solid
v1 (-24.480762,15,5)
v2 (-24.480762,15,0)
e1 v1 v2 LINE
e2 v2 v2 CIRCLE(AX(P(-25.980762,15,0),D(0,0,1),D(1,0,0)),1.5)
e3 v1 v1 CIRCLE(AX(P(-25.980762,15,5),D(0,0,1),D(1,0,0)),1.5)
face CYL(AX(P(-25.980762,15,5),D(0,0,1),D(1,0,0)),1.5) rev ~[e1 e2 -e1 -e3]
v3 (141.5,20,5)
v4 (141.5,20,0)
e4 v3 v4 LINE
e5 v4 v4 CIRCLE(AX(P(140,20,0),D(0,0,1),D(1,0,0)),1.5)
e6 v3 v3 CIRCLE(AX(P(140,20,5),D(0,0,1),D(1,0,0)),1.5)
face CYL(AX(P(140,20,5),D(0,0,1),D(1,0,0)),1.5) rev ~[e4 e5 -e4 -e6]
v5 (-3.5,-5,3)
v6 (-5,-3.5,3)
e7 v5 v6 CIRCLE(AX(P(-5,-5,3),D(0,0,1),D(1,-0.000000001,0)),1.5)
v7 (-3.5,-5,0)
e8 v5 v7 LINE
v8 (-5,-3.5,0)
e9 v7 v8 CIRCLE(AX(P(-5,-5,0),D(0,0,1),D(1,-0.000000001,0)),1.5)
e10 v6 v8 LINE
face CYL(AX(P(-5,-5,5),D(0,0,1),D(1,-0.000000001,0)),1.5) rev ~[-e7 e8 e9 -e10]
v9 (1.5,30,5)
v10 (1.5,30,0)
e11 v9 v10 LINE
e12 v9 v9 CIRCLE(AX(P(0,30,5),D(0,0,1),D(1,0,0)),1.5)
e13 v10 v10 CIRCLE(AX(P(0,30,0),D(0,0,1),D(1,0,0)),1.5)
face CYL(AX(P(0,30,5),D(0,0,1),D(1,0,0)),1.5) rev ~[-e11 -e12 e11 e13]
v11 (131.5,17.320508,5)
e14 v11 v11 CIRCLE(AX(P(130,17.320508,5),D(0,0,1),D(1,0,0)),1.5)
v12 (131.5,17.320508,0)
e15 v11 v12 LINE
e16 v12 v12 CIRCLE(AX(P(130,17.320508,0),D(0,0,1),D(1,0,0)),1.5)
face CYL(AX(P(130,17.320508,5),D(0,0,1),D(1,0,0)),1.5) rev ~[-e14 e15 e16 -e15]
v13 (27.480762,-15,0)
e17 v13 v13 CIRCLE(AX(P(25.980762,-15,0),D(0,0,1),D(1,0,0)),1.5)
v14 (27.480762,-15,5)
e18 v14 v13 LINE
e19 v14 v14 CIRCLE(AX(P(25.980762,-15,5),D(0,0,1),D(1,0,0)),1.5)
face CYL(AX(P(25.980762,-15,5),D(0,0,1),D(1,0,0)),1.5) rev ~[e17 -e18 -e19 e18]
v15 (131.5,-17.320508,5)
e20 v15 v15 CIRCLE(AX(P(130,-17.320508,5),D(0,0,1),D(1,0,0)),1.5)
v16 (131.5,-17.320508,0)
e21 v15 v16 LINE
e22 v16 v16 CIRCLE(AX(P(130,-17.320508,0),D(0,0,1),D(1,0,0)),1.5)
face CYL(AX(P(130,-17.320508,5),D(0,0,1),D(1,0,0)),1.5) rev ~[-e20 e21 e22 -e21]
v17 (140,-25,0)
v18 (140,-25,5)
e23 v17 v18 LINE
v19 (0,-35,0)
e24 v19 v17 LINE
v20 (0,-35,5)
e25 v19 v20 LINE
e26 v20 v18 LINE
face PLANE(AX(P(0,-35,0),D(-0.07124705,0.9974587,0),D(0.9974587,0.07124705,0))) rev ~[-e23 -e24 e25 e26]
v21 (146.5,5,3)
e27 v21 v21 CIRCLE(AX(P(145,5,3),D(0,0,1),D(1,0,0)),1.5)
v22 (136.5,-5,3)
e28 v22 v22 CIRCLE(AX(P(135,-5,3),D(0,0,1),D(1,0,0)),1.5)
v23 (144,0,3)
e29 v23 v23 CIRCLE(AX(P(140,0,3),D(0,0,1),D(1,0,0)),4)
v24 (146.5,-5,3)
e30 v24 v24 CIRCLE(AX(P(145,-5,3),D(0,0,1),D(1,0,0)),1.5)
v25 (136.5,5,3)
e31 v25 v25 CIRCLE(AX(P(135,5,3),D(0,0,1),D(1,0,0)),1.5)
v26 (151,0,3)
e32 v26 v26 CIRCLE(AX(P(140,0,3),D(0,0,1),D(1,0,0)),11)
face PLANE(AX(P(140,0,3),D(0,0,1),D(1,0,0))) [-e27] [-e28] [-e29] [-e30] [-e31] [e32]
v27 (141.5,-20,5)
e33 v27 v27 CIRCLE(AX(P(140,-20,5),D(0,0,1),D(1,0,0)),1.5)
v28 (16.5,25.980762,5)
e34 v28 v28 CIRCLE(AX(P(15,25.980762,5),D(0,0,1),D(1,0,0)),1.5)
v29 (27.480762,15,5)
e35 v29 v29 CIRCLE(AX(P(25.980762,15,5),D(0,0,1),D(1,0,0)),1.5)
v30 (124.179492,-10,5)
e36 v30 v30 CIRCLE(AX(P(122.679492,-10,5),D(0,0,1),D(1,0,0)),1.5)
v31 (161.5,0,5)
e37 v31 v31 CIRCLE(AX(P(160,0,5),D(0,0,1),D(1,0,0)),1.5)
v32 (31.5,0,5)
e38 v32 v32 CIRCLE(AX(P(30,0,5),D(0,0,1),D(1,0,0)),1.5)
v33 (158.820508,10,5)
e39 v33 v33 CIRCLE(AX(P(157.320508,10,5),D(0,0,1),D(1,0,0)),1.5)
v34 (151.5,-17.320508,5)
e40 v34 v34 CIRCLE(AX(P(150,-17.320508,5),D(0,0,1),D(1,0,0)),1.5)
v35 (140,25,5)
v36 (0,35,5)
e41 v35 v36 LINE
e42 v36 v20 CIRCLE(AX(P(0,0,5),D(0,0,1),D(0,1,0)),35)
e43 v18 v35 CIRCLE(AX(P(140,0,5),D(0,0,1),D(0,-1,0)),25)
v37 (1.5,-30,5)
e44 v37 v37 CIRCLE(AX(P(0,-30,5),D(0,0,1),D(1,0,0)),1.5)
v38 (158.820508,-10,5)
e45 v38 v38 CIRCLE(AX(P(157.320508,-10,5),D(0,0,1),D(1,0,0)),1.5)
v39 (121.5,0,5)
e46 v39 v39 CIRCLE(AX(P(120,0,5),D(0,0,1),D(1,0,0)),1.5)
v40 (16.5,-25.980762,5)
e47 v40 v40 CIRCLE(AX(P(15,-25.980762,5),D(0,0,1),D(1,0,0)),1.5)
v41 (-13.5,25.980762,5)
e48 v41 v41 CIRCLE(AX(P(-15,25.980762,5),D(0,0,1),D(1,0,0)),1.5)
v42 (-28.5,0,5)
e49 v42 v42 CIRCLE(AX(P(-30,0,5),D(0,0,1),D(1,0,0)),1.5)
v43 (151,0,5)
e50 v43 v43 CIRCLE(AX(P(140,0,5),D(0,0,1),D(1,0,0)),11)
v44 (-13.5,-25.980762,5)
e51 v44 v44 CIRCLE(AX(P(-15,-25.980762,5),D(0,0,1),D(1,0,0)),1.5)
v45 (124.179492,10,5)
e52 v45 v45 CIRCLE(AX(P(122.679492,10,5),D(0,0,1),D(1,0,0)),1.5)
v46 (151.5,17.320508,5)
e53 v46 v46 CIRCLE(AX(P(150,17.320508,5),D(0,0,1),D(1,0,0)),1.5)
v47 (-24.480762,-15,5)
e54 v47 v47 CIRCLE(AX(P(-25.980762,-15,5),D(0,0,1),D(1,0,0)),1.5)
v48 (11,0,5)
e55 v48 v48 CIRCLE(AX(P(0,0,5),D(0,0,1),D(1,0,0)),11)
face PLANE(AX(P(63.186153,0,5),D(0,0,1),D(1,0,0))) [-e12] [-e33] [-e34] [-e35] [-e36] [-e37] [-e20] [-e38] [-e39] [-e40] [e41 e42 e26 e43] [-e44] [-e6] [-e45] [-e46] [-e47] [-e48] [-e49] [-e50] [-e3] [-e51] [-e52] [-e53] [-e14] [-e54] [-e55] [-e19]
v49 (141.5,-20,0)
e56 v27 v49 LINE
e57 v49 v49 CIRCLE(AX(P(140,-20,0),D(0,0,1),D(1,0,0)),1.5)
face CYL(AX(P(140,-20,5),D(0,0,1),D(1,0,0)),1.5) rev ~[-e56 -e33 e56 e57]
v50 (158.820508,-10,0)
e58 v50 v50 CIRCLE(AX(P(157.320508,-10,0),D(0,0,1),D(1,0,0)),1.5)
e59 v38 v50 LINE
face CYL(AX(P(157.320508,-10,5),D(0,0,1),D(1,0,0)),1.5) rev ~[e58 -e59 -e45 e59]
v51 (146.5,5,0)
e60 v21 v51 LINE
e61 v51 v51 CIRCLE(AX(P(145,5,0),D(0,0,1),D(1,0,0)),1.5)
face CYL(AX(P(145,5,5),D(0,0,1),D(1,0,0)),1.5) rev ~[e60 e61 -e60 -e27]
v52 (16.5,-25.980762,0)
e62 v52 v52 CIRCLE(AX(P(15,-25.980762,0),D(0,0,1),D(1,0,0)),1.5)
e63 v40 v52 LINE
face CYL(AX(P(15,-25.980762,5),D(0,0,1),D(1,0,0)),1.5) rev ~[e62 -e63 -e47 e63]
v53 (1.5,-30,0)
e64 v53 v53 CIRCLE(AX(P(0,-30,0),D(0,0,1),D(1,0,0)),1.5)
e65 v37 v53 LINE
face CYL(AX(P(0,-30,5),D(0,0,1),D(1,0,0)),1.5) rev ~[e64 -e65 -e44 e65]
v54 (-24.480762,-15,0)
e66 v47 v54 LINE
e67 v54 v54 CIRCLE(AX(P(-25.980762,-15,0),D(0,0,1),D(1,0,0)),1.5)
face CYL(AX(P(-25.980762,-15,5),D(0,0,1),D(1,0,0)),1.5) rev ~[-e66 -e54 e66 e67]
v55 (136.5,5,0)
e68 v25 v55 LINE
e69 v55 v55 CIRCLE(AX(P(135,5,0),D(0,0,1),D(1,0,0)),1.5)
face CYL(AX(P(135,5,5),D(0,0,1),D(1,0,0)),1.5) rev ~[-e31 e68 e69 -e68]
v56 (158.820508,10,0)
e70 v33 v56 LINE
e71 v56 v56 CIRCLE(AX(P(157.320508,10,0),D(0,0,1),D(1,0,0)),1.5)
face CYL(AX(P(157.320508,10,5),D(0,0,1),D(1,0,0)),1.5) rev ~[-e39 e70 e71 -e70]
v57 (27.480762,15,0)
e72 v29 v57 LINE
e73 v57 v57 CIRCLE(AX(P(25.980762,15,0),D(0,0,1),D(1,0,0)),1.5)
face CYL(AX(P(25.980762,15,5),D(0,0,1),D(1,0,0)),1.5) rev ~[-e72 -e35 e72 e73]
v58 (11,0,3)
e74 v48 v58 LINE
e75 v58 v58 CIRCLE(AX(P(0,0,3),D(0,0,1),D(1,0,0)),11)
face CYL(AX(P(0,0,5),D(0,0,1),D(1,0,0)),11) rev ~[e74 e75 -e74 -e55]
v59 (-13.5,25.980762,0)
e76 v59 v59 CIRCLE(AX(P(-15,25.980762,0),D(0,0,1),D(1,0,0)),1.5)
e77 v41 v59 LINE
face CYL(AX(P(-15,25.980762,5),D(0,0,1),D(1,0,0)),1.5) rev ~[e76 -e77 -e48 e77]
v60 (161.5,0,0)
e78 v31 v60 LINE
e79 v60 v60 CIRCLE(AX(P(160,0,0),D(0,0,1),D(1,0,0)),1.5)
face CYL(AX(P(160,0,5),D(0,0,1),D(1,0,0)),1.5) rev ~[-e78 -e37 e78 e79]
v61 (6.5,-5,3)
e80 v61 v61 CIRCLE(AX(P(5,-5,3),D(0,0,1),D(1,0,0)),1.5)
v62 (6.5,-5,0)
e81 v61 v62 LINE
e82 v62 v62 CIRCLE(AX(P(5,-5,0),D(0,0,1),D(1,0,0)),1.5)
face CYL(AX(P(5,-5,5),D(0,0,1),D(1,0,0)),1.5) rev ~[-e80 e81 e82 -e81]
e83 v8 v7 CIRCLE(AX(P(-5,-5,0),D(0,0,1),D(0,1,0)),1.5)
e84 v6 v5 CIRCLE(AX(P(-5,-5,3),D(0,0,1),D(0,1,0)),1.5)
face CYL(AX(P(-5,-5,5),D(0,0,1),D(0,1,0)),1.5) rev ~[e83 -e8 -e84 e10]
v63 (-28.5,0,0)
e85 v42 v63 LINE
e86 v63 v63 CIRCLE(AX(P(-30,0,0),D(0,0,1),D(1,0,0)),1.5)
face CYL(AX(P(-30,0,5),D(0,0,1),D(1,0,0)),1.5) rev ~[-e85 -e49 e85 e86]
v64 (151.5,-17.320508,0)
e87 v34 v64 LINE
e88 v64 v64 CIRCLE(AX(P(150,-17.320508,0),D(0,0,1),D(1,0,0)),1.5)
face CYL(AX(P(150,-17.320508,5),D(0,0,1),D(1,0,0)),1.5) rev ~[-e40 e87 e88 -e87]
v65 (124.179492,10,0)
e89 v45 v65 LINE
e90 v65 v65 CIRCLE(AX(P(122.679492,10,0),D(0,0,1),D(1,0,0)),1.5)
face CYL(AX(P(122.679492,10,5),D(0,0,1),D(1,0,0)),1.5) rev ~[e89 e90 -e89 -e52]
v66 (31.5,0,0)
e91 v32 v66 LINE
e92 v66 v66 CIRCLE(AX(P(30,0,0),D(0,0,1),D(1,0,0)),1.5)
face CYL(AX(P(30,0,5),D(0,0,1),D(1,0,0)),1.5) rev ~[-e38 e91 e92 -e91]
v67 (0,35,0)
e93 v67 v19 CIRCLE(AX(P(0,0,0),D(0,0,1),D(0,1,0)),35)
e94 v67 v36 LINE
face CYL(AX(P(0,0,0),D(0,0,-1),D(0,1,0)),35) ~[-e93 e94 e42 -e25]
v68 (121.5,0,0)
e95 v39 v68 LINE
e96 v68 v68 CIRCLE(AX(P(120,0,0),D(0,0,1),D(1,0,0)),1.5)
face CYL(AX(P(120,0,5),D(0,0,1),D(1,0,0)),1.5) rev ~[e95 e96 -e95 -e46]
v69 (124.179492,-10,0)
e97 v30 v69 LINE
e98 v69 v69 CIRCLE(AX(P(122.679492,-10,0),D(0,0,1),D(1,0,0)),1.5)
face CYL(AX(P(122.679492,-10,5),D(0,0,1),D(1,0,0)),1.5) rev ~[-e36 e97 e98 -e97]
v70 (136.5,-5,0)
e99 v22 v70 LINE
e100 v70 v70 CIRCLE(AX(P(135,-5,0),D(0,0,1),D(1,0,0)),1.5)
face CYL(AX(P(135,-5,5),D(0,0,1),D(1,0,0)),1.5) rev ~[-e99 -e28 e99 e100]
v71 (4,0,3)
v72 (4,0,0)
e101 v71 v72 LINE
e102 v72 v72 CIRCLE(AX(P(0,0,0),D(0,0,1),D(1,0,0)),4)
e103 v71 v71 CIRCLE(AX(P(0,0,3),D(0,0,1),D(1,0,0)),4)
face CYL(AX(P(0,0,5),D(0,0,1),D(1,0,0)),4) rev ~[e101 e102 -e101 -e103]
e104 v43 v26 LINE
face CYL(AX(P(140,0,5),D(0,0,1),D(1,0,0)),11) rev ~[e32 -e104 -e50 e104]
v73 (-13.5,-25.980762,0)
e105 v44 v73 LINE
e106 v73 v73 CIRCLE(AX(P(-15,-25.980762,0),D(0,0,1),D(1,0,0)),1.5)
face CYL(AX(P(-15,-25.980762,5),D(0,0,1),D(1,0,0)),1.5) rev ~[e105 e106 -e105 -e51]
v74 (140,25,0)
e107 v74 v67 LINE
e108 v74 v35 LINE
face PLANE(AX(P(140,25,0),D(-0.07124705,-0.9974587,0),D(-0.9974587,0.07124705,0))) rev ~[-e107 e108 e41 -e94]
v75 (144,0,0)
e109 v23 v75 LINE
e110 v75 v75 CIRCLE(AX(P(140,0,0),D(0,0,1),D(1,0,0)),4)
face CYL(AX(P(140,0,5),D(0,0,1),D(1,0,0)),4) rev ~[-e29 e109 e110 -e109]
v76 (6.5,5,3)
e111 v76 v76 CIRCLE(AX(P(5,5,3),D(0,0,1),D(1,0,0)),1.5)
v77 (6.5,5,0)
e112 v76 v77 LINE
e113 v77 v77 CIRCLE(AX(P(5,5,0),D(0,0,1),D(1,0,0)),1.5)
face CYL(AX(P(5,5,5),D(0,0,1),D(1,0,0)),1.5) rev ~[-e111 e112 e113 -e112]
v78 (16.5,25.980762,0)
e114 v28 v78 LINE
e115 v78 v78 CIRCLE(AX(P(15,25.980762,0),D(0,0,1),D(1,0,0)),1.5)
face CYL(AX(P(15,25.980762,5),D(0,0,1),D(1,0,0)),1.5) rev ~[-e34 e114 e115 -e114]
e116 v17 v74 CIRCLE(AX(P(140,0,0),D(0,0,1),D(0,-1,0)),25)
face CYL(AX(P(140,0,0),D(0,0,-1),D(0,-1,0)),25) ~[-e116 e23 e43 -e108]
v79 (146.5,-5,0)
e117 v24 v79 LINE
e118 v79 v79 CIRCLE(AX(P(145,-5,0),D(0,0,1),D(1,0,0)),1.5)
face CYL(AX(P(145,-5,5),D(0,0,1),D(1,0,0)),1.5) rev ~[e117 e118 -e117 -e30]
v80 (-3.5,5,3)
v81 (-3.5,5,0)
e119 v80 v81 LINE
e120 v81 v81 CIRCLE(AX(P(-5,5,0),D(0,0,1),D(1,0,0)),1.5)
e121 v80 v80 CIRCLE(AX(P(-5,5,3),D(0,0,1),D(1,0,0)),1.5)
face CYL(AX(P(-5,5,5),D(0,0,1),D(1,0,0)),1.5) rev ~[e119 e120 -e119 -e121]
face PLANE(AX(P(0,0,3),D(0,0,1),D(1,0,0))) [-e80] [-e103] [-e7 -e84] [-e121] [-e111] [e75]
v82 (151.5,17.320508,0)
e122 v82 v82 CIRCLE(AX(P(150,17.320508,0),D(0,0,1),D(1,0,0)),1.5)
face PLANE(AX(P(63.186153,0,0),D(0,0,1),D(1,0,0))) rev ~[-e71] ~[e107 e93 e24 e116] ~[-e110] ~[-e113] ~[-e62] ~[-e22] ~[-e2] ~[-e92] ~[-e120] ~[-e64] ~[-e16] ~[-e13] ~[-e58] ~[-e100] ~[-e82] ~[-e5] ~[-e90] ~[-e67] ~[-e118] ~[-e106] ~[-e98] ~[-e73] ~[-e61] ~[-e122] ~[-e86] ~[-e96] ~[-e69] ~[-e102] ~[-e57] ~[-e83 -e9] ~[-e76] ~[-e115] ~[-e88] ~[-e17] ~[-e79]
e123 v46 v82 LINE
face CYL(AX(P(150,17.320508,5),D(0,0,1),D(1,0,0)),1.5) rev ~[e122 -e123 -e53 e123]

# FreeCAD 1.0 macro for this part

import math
import FreeCAD as App
import Part
import Sketcher

doc = App.newDocument("Part")
body = doc.addObject("PartDesign::Body", "Body")

sketch1 = body.newObject("Sketcher::SketchObject", "Sketch")
sketch1.AttachmentSupport = (doc.getObject("XY_Plane"), [""])
sketch1.MapMode = "FlatFace"
sketch1.addGeometry([
    Part.LineSegment(App.Vector(140, 25, 0), App.Vector(0, 35, 0)),
    Part.ArcOfCircle(Part.Circle(App.Vector(0, 0, 0), App.Vector(0, 0, 1), 35), math.radians(90), math.radians(270)),
    Part.LineSegment(App.Vector(0, -35, 0), App.Vector(140, -25, 0)),
    Part.ArcOfCircle(Part.Circle(App.Vector(140, 0, 0), App.Vector(0, 0, 1), 25), math.radians(-90), math.radians(90)),
], False)
sketch1.addConstraint([
    Sketcher.Constraint("Coincident", 0, 2, 1, 1),
    Sketcher.Constraint("Coincident", 1, 2, 2, 1),
    Sketcher.Constraint("Coincident", 2, 2, 3, 1),
    Sketcher.Constraint("Coincident", 3, 2, 0, 1),
    Sketcher.Constraint("Coincident", 1, 3, -1, 1),
    Sketcher.Constraint("Symmetric", 2, 2, 3, 2, -1),
    Sketcher.Constraint("PointOnObject", 0, 2, -2),
    Sketcher.Constraint("PointOnObject", 1, 2, -2),
    Sketcher.Constraint("Vertical", 3, 3, 2, 2),
    Sketcher.Constraint("Radius", 1, 35.0),
    Sketcher.Constraint("Radius", 3, 25.0),
    Sketcher.Constraint("DistanceX", -1, 1, 3, 3, 140.0),
])
pad1 = body.newObject("PartDesign::Pad", "Pad")
pad1.Profile = sketch1
pad1.Length = 5

sketch2 = body.newObject("Sketcher::SketchObject", "Sketch001")
sketch2.AttachmentSupport = (doc.getObject("XY_Plane"), [""])
sketch2.MapMode = "FlatFace"
sketch2.AttachmentOffset = App.Placement(App.Vector(0, 0, 5), App.Rotation())
sketch2.addGeometry([
    Part.Circle(App.Vector(140, 0, 0), App.Vector(0, 0, 1), 4),
    Part.Circle(App.Vector(0, 0, 0), App.Vector(0, 0, 1), 4),
    Part.ArcOfCircle(Part.Circle(App.Vector(-5, -5, 0), App.Vector(0, 0, 1), 1.5), math.radians(0), math.radians(90)),
    Part.ArcOfCircle(Part.Circle(App.Vector(-5, -5, 0), App.Vector(0, 0, 1), 1.5), math.radians(90), math.radians(360)),
    Part.Circle(App.Vector(135, 5, 0), App.Vector(0, 0, 1), 1.5),
    Part.Circle(App.Vector(135, -5, 0), App.Vector(0, 0, 1), 1.5),
    Part.Circle(App.Vector(145, -5, 0), App.Vector(0, 0, 1), 1.5),
    Part.Circle(App.Vector(145, 5, 0), App.Vector(0, 0, 1), 1.5),
    Part.Circle(App.Vector(-5, 5, 0), App.Vector(0, 0, 1), 1.5),
    Part.Circle(App.Vector(5, 5, 0), App.Vector(0, 0, 1), 1.5),
    Part.Circle(App.Vector(5, -5, 0), App.Vector(0, 0, 1), 1.5),
], False)
sketch2.addConstraint([
    Sketcher.Constraint("Tangent", 2, 1, 3, 2),
    Sketcher.Constraint("Coincident", 3, 1, 2, 2),
    Sketcher.Constraint("Coincident", 1, 3, -1, 1),
    Sketcher.Constraint("Equal", 0, 1),
    Sketcher.Constraint("Equal", 3, 4),
    Sketcher.Constraint("Equal", 4, 5),
    Sketcher.Constraint("Equal", 5, 6),
    Sketcher.Constraint("Equal", 6, 7),
    Sketcher.Constraint("Equal", 7, 8),
    Sketcher.Constraint("Equal", 8, 9),
    Sketcher.Constraint("Equal", 9, 10),
    Sketcher.Constraint("Symmetric", 2, 3, 9, 3, -1, 1),
    Sketcher.Constraint("Symmetric", 8, 3, 10, 3, -1, 1),
    Sketcher.Constraint("Symmetric", 8, 3, 9, 3, -2),
    Sketcher.Constraint("Symmetric", 4, 3, 5, 3, -1),
    Sketcher.Constraint("Symmetric", 6, 3, 7, 3, -1),
    Sketcher.Constraint("PointOnObject", 0, 3, -1),
    Sketcher.Constraint("Horizontal", 3, 3, 5, 3),
    Sketcher.Constraint("Horizontal", 5, 3, 6, 3),
    Sketcher.Constraint("Horizontal", 10, 3, 2, 1),
    Sketcher.Constraint("Vertical", 8, 3, 3, 1),
    Sketcher.Constraint("Diameter", 0, 8.0),
    Sketcher.Constraint("Diameter", 4, 3.0),
    Sketcher.Constraint("DistanceX", -1, 1, 0, 3, 140.0),
    Sketcher.Constraint("DistanceX", 2, 3, -1, 1, 5.0),
    Sketcher.Constraint("DistanceY", 2, 3, -1, 1, 5.0),
    Sketcher.Constraint("DistanceX", -1, 1, 4, 3, 135.0),
    Sketcher.Constraint("DistanceX", -1, 1, 6, 3, 145.0),
])
pocket1 = body.newObject("PartDesign::Pocket", "Pocket")
pocket1.Profile = sketch2
pocket1.Length = 5

sketch3 = body.newObject("Sketcher::SketchObject", "Sketch002")
sketch3.AttachmentSupport = (doc.getObject("XY_Plane"), [""])
sketch3.MapMode = "FlatFace"
sketch3.AttachmentOffset = App.Placement(App.Vector(0, 0, 5), App.Rotation())
sketch3.addGeometry([
    Part.Circle(App.Vector(0, 0, 0), App.Vector(0, 0, 1), 11),
    Part.Circle(App.Vector(140, 0, 0), App.Vector(0, 0, 1), 11),
], False)
sketch3.addConstraint([
    Sketcher.Constraint("Coincident", 0, 3, -1, 1),
    Sketcher.Constraint("Equal", 0, 1),
    Sketcher.Constraint("PointOnObject", 1, 3, -1),
    Sketcher.Constraint("Diameter", 0, 22.0),
    Sketcher.Constraint("DistanceX", -1, 1, 1, 3, 140.0),
])
pocket2 = body.newObject("PartDesign::Pocket", "Pocket001")
pocket2.Profile = sketch3
pocket2.Length = 2

sketch4 = body.newObject("Sketcher::SketchObject", "Sketch003")
sketch4.AttachmentSupport = (doc.getObject("XY_Plane"), [""])
sketch4.MapMode = "FlatFace"
sketch4.AttachmentOffset = App.Placement(App.Vector(0, 0, 5), App.Rotation())
sketch4.addGeometry([
    Part.Circle(App.Vector(0, 30, 0), App.Vector(0, 0, 1), 1.5),
    Part.Circle(App.Vector(15, 26, 0), App.Vector(0, 0, 1), 1.5),
    Part.Circle(App.Vector(26, 15, 0), App.Vector(0, 0, 1), 1.5),
    Part.Circle(App.Vector(30, 0, 0), App.Vector(0, 0, 1), 1.5),
    Part.Circle(App.Vector(26, -15, 0), App.Vector(0, 0, 1), 1.5),
    Part.Circle(App.Vector(15, -26, 0), App.Vector(0, 0, 1), 1.5),
    Part.Circle(App.Vector(0, -30, 0), App.Vector(0, 0, 1), 1.5),
    Part.Circle(App.Vector(-15, -26, 0), App.Vector(0, 0, 1), 1.5),
    Part.Circle(App.Vector(-26, -15, 0), App.Vector(0, 0, 1), 1.5),
    Part.Circle(App.Vector(-30, 0, 0), App.Vector(0, 0, 1), 1.5),
    Part.Circle(App.Vector(-26, 15, 0), App.Vector(0, 0, 1), 1.5),
    Part.Circle(App.Vector(-15, 26, 0), App.Vector(0, 0, 1), 1.5),
    Part.Circle(App.Vector(140, 20, 0), App.Vector(0, 0, 1), 1.5),
    Part.Circle(App.Vector(150, 17.3, 0), App.Vector(0, 0, 1), 1.5),
    Part.Circle(App.Vector(157.3, 10, 0), App.Vector(0, 0, 1), 1.5),
    Part.Circle(App.Vector(160, 0, 0), App.Vector(0, 0, 1), 1.5),
    Part.Circle(App.Vector(157.3, -10, 0), App.Vector(0, 0, 1), 1.5),
    Part.Circle(App.Vector(150, -17.3, 0), App.Vector(0, 0, 1), 1.5),
    Part.Circle(App.Vector(140, -20, 0), App.Vector(0, 0, 1), 1.5),
    Part.Circle(App.Vector(130, -17.3, 0), App.Vector(0, 0, 1), 1.5),
    Part.Circle(App.Vector(122.7, -10, 0), App.Vector(0, 0, 1), 1.5),
    Part.Circle(App.Vector(120, 0, 0), App.Vector(0, 0, 1), 1.5),
    Part.Circle(App.Vector(122.7, 10, 0), App.Vector(0, 0, 1), 1.5),
    Part.Circle(App.Vector(130, 17.3, 0), App.Vector(0, 0, 1), 1.5),
], False)
sketch4.addConstraint([
    Sketcher.Constraint("Equal", 0, 1),
    Sketcher.Constraint("Equal", 1, 2),
    Sketcher.Constraint("Equal", 2, 3),
    Sketcher.Constraint("Equal", 3, 4),
    Sketcher.Constraint("Equal", 4, 5),
    Sketcher.Constraint("Equal", 5, 6),
    Sketcher.Constraint("Equal", 6, 7),
    Sketcher.Constraint("Equal", 7, 8),
    Sketcher.Constraint("Equal", 8, 9),
    Sketcher.Constraint("Equal", 9, 10),
    Sketcher.Constraint("Equal", 10, 11),
    Sketcher.Constraint("Equal", 11, 12),
    Sketcher.Constraint("Equal", 12, 13),
    Sketcher.Constraint("Equal", 13, 14),
    Sketcher.Constraint("Equal", 14, 15),
    Sketcher.Constraint("Equal", 15, 16),
    Sketcher.Constraint("Equal", 16, 17),
    Sketcher.Constraint("Equal", 17, 18),
    Sketcher.Constraint("Equal", 18, 19),
    Sketcher.Constraint("Equal", 19, 20),
    Sketcher.Constraint("Equal", 20, 21),
    Sketcher.Constraint("Equal", 21, 22),
    Sketcher.Constraint("Equal", 22, 23),
    Sketcher.Constraint("Symmetric", 0, 3, 6, 3, -1, 1),
    Sketcher.Constraint("Symmetric", 1, 3, 7, 3, -1, 1),
    Sketcher.Constraint("Symmetric", 2, 3, 8, 3, -1, 1),
    Sketcher.Constraint("Symmetric", 3, 3, 9, 3, -1, 1),
    Sketcher.Constraint("Symmetric", 4, 3, 10, 3, -1, 1),
    Sketcher.Constraint("Symmetric", 5, 3, 11, 3, -1, 1),
    Sketcher.Constraint("Symmetric", 5, 3, 7, 3, -2),
    Sketcher.Constraint("Symmetric", 4, 3, 8, 3, -2),
    Sketcher.Constraint("Symmetric", 14, 3, 16, 3, -1),
    Sketcher.Constraint("Symmetric", 13, 3, 17, 3, -1),
    Sketcher.Constraint("Symmetric", 12, 3, 18, 3, -1),
    Sketcher.Constraint("Symmetric", 20, 3, 22, 3, -1),
    Sketcher.Constraint("Symmetric", 19, 3, 23, 3, -1),
    Sketcher.Constraint("PointOnObject", 0, 3, -2),
    Sketcher.Constraint("PointOnObject", 3, 3, -1),
    Sketcher.Constraint("PointOnObject", 15, 3, -1),
    Sketcher.Constraint("PointOnObject", 21, 3, -1),
    Sketcher.Constraint("Horizontal", 17, 3, 19, 3),
    Sketcher.Constraint("Horizontal", 16, 3, 20, 3),
    Sketcher.Constraint("Diameter", 0, 3.0),
    Sketcher.Constraint("DistanceY", -1, 1, 0, 3, 30.0),
    Sketcher.Constraint("DistanceX", -1, 1, 1, 3, 15.0),
    Sketcher.Constraint("DistanceY", -1, 1, 2, 3, 15.0),
    Sketcher.Constraint("DistanceX", -1, 1, 3, 3, 30.0),
    Sketcher.Constraint("DistanceX", -1, 1, 12, 3, 140.0),
    Sketcher.Constraint("DistanceY", -1, 1, 12, 3, 20.0),
    Sketcher.Constraint("DistanceX", -1, 1, 13, 3, 150.0),
    Sketcher.Constraint("DistanceY", -1, 1, 14, 3, 10.0),
    Sketcher.Constraint("DistanceX", -1, 1, 15, 3, 160.0),
    Sketcher.Constraint("DistanceX", -1, 1, 19, 3, 130.0),
    Sketcher.Constraint("DistanceX", -1, 1, 21, 3, 120.0),
    Sketcher.Constraint("DistanceY", -1, 1, 13, 3, 17.320508),
    Sketcher.Constraint("DistanceX", -1, 1, 14, 3, 157.320508),
    Sketcher.Constraint("DistanceX", -1, 1, 20, 3, 122.679492),
    Sketcher.Constraint("DistanceY", -1, 1, 1, 3, 25.980762),
    Sketcher.Constraint("DistanceX", -1, 1, 2, 3, 25.980762),
])
pocket3 = body.newObject("PartDesign::Pocket", "Pocket002")
pocket3.Profile = sketch4
pocket3.Type = "ThroughAll"

doc.recompute()
